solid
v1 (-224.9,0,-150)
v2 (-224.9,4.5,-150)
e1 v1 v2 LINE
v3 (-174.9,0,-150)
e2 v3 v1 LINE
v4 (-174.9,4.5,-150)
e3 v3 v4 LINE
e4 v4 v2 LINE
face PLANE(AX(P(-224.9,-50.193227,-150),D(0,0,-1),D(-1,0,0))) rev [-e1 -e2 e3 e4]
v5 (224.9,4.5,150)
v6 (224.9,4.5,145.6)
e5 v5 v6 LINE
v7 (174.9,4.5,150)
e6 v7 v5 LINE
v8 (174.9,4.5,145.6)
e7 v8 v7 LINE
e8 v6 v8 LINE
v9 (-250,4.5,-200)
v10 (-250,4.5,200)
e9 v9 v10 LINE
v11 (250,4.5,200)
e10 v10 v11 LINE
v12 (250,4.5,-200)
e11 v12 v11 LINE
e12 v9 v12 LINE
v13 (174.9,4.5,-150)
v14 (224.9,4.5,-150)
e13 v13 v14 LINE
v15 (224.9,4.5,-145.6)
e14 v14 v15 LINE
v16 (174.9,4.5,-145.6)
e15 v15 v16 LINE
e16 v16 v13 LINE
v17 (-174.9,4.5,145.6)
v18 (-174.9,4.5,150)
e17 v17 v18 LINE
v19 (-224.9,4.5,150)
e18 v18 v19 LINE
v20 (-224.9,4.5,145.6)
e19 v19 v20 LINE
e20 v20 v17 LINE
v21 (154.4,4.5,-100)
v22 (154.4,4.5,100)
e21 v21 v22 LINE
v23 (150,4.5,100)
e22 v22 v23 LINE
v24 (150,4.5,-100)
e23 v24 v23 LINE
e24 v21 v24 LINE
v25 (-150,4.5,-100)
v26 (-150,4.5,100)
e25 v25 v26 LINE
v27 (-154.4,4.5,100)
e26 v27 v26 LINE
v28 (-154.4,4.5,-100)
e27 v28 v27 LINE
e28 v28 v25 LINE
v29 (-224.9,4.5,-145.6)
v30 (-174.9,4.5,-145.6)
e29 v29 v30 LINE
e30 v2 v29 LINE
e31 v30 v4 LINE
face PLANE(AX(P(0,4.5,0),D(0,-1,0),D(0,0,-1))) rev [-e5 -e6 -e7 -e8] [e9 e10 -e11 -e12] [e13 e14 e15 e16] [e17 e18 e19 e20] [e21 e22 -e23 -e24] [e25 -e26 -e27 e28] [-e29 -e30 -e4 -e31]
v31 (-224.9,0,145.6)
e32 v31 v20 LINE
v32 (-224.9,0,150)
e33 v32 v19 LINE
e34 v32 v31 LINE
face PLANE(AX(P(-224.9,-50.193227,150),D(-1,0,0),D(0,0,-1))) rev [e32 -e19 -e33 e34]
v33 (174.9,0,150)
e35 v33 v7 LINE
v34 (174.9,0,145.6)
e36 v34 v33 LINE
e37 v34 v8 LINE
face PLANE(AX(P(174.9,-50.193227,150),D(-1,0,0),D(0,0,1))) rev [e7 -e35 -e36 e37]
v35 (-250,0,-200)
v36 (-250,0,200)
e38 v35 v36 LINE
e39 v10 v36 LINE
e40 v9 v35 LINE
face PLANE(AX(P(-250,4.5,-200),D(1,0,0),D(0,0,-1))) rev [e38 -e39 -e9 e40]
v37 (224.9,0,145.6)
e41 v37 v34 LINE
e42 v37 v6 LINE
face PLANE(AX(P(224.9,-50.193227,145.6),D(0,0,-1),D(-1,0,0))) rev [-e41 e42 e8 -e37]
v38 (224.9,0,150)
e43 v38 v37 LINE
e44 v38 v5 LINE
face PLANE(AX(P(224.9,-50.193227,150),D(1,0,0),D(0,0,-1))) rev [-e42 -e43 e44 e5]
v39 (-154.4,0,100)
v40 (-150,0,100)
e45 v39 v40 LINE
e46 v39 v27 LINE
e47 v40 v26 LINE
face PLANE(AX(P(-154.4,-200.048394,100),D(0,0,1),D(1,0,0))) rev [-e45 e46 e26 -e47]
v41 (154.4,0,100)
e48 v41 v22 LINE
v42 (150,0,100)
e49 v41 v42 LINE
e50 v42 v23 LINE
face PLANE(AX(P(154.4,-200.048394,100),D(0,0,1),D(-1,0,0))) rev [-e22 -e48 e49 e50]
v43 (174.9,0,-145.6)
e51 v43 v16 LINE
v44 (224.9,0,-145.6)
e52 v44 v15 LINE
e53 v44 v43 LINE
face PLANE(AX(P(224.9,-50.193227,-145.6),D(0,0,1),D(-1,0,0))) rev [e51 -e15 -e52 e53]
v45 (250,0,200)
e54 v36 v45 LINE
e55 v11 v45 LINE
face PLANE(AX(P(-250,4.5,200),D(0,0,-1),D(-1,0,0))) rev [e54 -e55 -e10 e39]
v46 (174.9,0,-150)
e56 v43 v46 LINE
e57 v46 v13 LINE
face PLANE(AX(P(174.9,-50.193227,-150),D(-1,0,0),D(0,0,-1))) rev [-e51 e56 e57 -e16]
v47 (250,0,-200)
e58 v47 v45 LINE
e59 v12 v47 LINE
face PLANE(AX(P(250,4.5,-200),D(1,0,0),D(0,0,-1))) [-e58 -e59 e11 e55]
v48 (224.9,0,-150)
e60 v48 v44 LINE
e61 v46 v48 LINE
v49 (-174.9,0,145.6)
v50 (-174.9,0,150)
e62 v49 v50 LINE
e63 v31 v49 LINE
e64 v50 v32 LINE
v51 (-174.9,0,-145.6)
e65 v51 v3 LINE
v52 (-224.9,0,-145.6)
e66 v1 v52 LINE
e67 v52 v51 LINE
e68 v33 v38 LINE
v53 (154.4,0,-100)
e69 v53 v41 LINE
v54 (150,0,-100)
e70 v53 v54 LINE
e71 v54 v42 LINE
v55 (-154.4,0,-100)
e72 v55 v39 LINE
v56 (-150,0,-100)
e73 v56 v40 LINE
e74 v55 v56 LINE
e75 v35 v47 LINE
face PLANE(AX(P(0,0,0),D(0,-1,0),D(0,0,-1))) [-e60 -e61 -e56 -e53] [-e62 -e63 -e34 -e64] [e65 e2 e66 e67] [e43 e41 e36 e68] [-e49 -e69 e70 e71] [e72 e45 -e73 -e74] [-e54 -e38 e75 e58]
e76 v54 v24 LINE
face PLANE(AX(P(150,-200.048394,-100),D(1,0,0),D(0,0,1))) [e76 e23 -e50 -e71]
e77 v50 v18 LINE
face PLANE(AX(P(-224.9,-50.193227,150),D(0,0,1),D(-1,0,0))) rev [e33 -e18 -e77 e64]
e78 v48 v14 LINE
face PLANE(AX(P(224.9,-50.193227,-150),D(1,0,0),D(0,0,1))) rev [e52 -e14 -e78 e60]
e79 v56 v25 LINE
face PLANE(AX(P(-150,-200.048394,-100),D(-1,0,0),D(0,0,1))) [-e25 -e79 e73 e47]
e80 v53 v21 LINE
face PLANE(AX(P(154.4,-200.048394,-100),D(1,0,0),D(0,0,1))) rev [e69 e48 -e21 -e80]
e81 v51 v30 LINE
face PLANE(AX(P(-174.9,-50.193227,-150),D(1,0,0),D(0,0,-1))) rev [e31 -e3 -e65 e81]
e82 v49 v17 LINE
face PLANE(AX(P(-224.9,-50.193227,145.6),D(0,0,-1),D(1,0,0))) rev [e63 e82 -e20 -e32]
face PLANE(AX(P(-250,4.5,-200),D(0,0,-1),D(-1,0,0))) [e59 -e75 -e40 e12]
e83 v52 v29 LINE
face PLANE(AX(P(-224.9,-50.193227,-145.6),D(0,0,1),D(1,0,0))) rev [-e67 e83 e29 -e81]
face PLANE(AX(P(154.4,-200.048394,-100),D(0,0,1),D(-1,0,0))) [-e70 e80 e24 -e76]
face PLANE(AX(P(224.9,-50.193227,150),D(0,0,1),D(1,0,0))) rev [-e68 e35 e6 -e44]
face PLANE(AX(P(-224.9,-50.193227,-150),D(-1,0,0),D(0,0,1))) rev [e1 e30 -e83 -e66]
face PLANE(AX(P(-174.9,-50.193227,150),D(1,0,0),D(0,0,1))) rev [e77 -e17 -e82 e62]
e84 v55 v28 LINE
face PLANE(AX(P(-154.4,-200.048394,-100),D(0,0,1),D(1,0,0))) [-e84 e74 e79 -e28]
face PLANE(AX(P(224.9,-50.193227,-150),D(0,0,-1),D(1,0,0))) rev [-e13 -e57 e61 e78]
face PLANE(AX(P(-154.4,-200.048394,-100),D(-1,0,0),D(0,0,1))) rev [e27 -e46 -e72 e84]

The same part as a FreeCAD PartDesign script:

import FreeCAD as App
import Part
import Sketcher
Q = App.Units.Quantity

doc = App.newDocument("Part")
params = doc.addObject("Spreadsheet::Sheet", "Params")
for row, (alias, value) in enumerate([
    ("sketch1_width", "500 mm"),
    ("sketch1_height", "400 mm"),
    ("pad1_length", "4.5 mm"),
    ("sketch2_height", "200 mm"),
    ("sketch2_width", "4.4 mm"),
    ("pocket1_length", "4.5 mm"),
    ("sketch3_width", "50 mm"),
    ("sketch3_height", "4.4 mm"),
    ("pocket2_length", "4.5 mm"),
    ("sketch4_width", "50 mm"),
    ("sketch4_height", "4.4 mm"),
    ("pocket3_length", "4.5 mm"),
], start=1):
    params.set(f"A{row}", alias)
    params.set(f"B{row}", "=" + value)
    params.setAlias(f"B{row}", alias)

body = doc.addObject("PartDesign::Body", "Body")

sketch1 = doc.addObject("Sketcher::SketchObject", "Sketch")
body.addObject(sketch1)
sketch1.AttachmentSupport = (doc.XZ_Plane, [""])
sketch1.MapMode = "FlatFace"
sketch1.addGeometry([
    Part.LineSegment(App.Vector(-250, -200, 0), App.Vector(-250, 200, 0)),
    Part.LineSegment(App.Vector(-250, 200, 0), App.Vector(250, 200, 0)),
    Part.LineSegment(App.Vector(250, 200, 0), App.Vector(250, -200, 0)),
    Part.LineSegment(App.Vector(250, -200, 0), App.Vector(-250, -200, 0)),
], False)
sketch1.addConstraint([
    Sketcher.Constraint("Coincident", 0, 2, 1, 1),
    Sketcher.Constraint("Coincident", 1, 2, 2, 1),
    Sketcher.Constraint("Coincident", 2, 2, 3, 1),
    Sketcher.Constraint("Coincident", 3, 2, 0, 1),
    Sketcher.Constraint("Vertical", 0),
    Sketcher.Constraint("Horizontal", 1),
    Sketcher.Constraint("Vertical", 2),
    Sketcher.Constraint("Horizontal", 3),
    Sketcher.Constraint("Symmetric", 0, 2, 2, 2, -1, 1),
    Sketcher.Constraint("DistanceX", 1, 1, 1, 2, Q("500 mm")),
    Sketcher.Constraint("DistanceY", 0, 1, 0, 2, Q("400 mm")),
])
sketch1.setExpression("Constraints[9]", "Params.sketch1_width")
sketch1.setExpression("Constraints[10]", "Params.sketch1_height")
pad1 = doc.addObject("PartDesign::Pad", "Pad")
body.addObject(pad1)
pad1.Profile = sketch1
pad1.setExpression("Length", "Params.pad1_length")
pad1.Reversed = True

sketch2 = doc.addObject("Sketcher::SketchObject", "Sketch001")
body.addObject(sketch2)
sketch2.AttachmentSupport = (doc.XZ_Plane, [""])
sketch2.MapMode = "FlatFace"
sketch2.AttachmentOffset = App.Placement(App.Vector(0, 0, -4.5), App.Rotation())
sketch2.addGeometry([
    Part.LineSegment(App.Vector(-154.4, -100, 0), App.Vector(-154.4, 100, 0)),
    Part.LineSegment(App.Vector(-154.4, 100, 0), App.Vector(-150, 100, 0)),
    Part.LineSegment(App.Vector(-150, 100, 0), App.Vector(-150, -100, 0)),
    Part.LineSegment(App.Vector(-150, -100, 0), App.Vector(-154.4, -100, 0)),
], False)
sketch2.addConstraint([
    Sketcher.Constraint("Coincident", 0, 2, 1, 1),
    Sketcher.Constraint("Coincident", 1, 2, 2, 1),
    Sketcher.Constraint("Coincident", 2, 2, 3, 1),
    Sketcher.Constraint("Coincident", 3, 2, 0, 1),
    Sketcher.Constraint("Vertical", 0),
    Sketcher.Constraint("Horizontal", 1),
    Sketcher.Constraint("Vertical", 2),
    Sketcher.Constraint("Horizontal", 3),
    Sketcher.Constraint("DistanceY", 0, 1, 0, 2, Q("200 mm")),
    Sketcher.Constraint("DistanceX", 1, 1, 1, 2, Q("4.4 mm")),
    Sketcher.Constraint("DistanceY", -1, 1, 0, 2, Q("100 mm")),
    Sketcher.Constraint("DistanceX", 1, 2, -1, 1, Q("150 mm")),
])
sketch2.setExpression("Constraints[8]", "Params.sketch2_height")
sketch2.setExpression("Constraints[9]", "Params.sketch2_width")
pocket1 = doc.addObject("PartDesign::Pocket", "Pocket")
body.addObject(pocket1)
pocket1.Profile = sketch2
pocket1.setExpression("Length", "Params.pocket1_length")
pocket1.Reversed = True
doc.recompute()

mirrored = doc.addObject("PartDesign::Mirrored", "Mirrored")
body.addObject(mirrored)
mirrored.Originals = [pocket1]
mirrored.MirrorPlane = (doc.YZ_Plane, [""])
body.Tip = mirrored

sketch3 = doc.addObject("Sketcher::SketchObject", "Sketch002")
body.addObject(sketch3)
sketch3.AttachmentSupport = (doc.XZ_Plane, [""])
sketch3.MapMode = "FlatFace"
sketch3.AttachmentOffset = App.Placement(App.Vector(0, 0, -4.5), App.Rotation())
sketch3.addGeometry([
    Part.LineSegment(App.Vector(-224.9, -150, 0), App.Vector(-224.9, -145.6, 0)),
    Part.LineSegment(App.Vector(-224.9, -145.6, 0), App.Vector(-174.9, -145.6, 0)),
    Part.LineSegment(App.Vector(-174.9, -145.6, 0), App.Vector(-174.9, -150, 0)),
    Part.LineSegment(App.Vector(-174.9, -150, 0), App.Vector(-224.9, -150, 0)),
], False)
sketch3.addConstraint([
    Sketcher.Constraint("Coincident", 0, 2, 1, 1),
    Sketcher.Constraint("Coincident", 1, 2, 2, 1),
    Sketcher.Constraint("Coincident", 2, 2, 3, 1),
    Sketcher.Constraint("Coincident", 3, 2, 0, 1),
    Sketcher.Constraint("Vertical", 0),
    Sketcher.Constraint("Horizontal", 1),
    Sketcher.Constraint("Vertical", 2),
    Sketcher.Constraint("Horizontal", 3),
    Sketcher.Constraint("DistanceX", 1, 1, 1, 2, Q("50 mm")),
    Sketcher.Constraint("DistanceY", 0, 1, 0, 2, Q("4.4 mm")),
    Sketcher.Constraint("DistanceY", 2, 2, -1, 1, Q("150 mm")),
    Sketcher.Constraint("DistanceX", 0, 2, -1, 1, Q("224.9 mm")),
])
sketch3.setExpression("Constraints[8]", "Params.sketch3_width")
sketch3.setExpression("Constraints[9]", "Params.sketch3_height")
pocket2 = doc.addObject("PartDesign::Pocket", "Pocket001")
body.addObject(pocket2)
pocket2.Profile = sketch3
pocket2.setExpression("Length", "Params.pocket2_length")
pocket2.Reversed = True
doc.recompute()

mirrored2 = doc.addObject("PartDesign::Mirrored", "Mirrored001")
body.addObject(mirrored2)
mirrored2.Originals = [pocket2]
mirrored2.MirrorPlane = (doc.XY_Plane, [""])
body.Tip = mirrored2
doc.recompute()

mirrored3 = doc.addObject("PartDesign::Mirrored", "Mirrored002")
body.addObject(mirrored3)
mirrored3.Originals = [pocket2]
mirrored3.MirrorPlane = (doc.YZ_Plane, [""])
body.Tip = mirrored3

sketch4 = doc.addObject("Sketcher::SketchObject", "Sketch003")
body.addObject(sketch4)
sketch4.AttachmentSupport = (doc.XZ_Plane, [""])
sketch4.MapMode = "FlatFace"
sketch4.AttachmentOffset = App.Placement(App.Vector(0, 0, -4.5), App.Rotation())
sketch4.addGeometry([
    Part.LineSegment(App.Vector(224.9, 150, 0), App.Vector(224.9, 145.6, 0)),
    Part.LineSegment(App.Vector(224.9, 145.6, 0), App.Vector(174.9, 145.6, 0)),
    Part.LineSegment(App.Vector(174.9, 145.6, 0), App.Vector(174.9, 150, 0)),
    Part.LineSegment(App.Vector(174.9, 150, 0), App.Vector(224.9, 150, 0)),
], False)
sketch4.addConstraint([
    Sketcher.Constraint("Coincident", 0, 2, 1, 1),
    Sketcher.Constraint("Coincident", 1, 2, 2, 1),
    Sketcher.Constraint("Coincident", 2, 2, 3, 1),
    Sketcher.Constraint("Coincident", 3, 2, 0, 1),
    Sketcher.Constraint("Vertical", 0),
    Sketcher.Constraint("Horizontal", 1),
    Sketcher.Constraint("Vertical", 2),
    Sketcher.Constraint("Horizontal", 3),
    Sketcher.Constraint("DistanceX", 1, 2, 1, 1, Q("50 mm")),
    Sketcher.Constraint("DistanceY", 0, 2, 0, 1, Q("4.4 mm")),
    Sketcher.Constraint("DistanceY", -1, 1, 2, 2, Q("150 mm")),
    Sketcher.Constraint("DistanceX", -1, 1, 0, 2, Q("224.9 mm")),
])
sketch4.setExpression("Constraints[8]", "Params.sketch4_width")
sketch4.setExpression("Constraints[9]", "Params.sketch4_height")
pocket3 = doc.addObject("PartDesign::Pocket", "Pocket002")
body.addObject(pocket3)
pocket3.Profile = sketch4
pocket3.setExpression("Length", "Params.pocket3_length")
pocket3.Reversed = True

doc.recompute()
